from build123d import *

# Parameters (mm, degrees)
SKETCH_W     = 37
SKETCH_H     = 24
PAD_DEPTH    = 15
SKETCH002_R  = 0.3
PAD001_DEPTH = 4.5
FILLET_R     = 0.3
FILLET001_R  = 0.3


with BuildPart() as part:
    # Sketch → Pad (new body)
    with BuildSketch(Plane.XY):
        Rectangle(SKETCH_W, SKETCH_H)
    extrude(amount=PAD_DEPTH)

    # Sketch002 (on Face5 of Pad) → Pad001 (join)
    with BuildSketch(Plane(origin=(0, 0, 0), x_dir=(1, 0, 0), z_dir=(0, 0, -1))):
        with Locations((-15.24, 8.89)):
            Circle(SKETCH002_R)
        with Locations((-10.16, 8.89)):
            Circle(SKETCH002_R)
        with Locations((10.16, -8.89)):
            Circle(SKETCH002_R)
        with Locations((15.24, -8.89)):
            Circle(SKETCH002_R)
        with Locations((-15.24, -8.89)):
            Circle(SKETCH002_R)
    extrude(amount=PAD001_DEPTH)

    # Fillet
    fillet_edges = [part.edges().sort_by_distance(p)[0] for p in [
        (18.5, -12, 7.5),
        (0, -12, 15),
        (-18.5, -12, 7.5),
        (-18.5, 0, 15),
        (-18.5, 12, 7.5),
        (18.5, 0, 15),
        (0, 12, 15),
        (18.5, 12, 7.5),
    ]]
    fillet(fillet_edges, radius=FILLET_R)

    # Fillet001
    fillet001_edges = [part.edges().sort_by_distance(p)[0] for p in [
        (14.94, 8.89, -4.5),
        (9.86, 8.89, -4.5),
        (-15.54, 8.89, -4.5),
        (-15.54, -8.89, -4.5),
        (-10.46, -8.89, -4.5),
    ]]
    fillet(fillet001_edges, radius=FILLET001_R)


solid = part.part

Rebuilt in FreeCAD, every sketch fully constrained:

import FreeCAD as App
import Part
import Sketcher
Q = App.Units.Quantity


def edges_at(feature, points):
    """Names of the edges that pass closest to the given points."""
    edges = feature.Shape.Edges
    near = lambda p: min(range(len(edges)), key=lambda i: edges[i].distToShape(Part.Vertex(*p))[0])
    return sorted({f"Edge{near(p) + 1}" for p in points})

doc = App.newDocument("Part")
body = doc.addObject("PartDesign::Body", "Body")

# Sketch on XY plane
sketch1 = body.newObject("Sketcher::SketchObject", "Sketch")
sketch1.AttachmentSupport = (doc.getObject("XY_Plane"), [""])
sketch1.MapMode = "FlatFace"
sketch1.addGeometry([
    Part.LineSegment(App.Vector(-18.5, 12, 0), App.Vector(-18.5, -12, 0)),
    Part.LineSegment(App.Vector(-18.5, -12, 0), App.Vector(18.5, -12, 0)),
    Part.LineSegment(App.Vector(18.5, -12, 0), App.Vector(18.5, 12, 0)),
    Part.LineSegment(App.Vector(18.5, 12, 0), App.Vector(-18.5, 12, 0)),
], False)
sketch1.addConstraint([
    Sketcher.Constraint("Coincident", 0, 2, 1, 1),
    Sketcher.Constraint("Coincident", 1, 2, 2, 1),
    Sketcher.Constraint("Coincident", 2, 2, 3, 1),
    Sketcher.Constraint("Coincident", 3, 2, 0, 1),
    Sketcher.Constraint("Vertical", 0),
    Sketcher.Constraint("Horizontal", 1),
    Sketcher.Constraint("Vertical", 2),
    Sketcher.Constraint("Horizontal", 3),
    Sketcher.Constraint("Symmetric", 0, 2, 2, 2, -1, 1),
    Sketcher.Constraint("DistanceX", 1, 1, 1, 2, Q("37 mm")),
    Sketcher.Constraint("DistanceY", 0, 2, 0, 1, Q("24 mm")),
])
pad1 = body.newObject("PartDesign::Pad", "Pad")
pad1.Profile = sketch1
pad1.Length = 15

# Sketch on XY plane
sketch2 = body.newObject("Sketcher::SketchObject", "Sketch001")
sketch2.AttachmentSupport = (doc.getObject("XY_Plane"), [""])
sketch2.MapMode = "FlatFace"
sketch2.addGeometry([
    Part.Circle(App.Vector(-15.24, -8.89, 0), App.Vector(0, 0, 1), 0.3),  # 0
    Part.Circle(App.Vector(-10.16, -8.89, 0), App.Vector(0, 0, 1), 0.3),  # 1
    Part.Circle(App.Vector(10.16, 8.89, 0), App.Vector(0, 0, 1), 0.3),  # 2
    Part.Circle(App.Vector(15.24, 8.89, 0), App.Vector(0, 0, 1), 0.3),  # 3
    Part.Circle(App.Vector(-15.24, 8.89, 0), App.Vector(0, 0, 1), 0.3),  # 4
], False)
sketch2.addConstraint([
    Sketcher.Constraint("Equal", 0, 1),
    Sketcher.Constraint("Equal", 1, 2),
    Sketcher.Constraint("Equal", 2, 3),
    Sketcher.Constraint("Equal", 3, 4),
    Sketcher.Constraint("Symmetric", 1, 3, 2, 3, -1, 1),
    Sketcher.Constraint("Symmetric", 0, 3, 3, 3, -1, 1),
    Sketcher.Constraint("Symmetric", 3, 3, 4, 3, -2),
    Sketcher.Constraint("Horizontal", 0, 3, 1, 3),
    Sketcher.Constraint("Diameter", 0, Q("0.6 mm")),
    Sketcher.Constraint("DistanceX", 0, 3, 2, 3, Q("25.4 mm")),
    Sketcher.Constraint("DistanceX", 0, 3, -1, 1, Q("15.24 mm")),
    Sketcher.Constraint("DistanceY", 0, 3, -1, 1, Q("8.89 mm")),
])
pad2 = body.newObject("PartDesign::Pad", "Pad001")
pad2.Profile = sketch2
pad2.Length = 4.5
pad2.Reversed = True
doc.recompute()

fillet = body.newObject("PartDesign::Fillet", "Fillet")
fillet.Base = (pad2, edges_at(pad2, [
    (18.5, -12, 7.5),
    (0, -12, 15),
    (-18.5, -12, 7.5),
    (-18.5, 0, 15),
    (-18.5, 12, 7.5),
    (18.5, 0, 15),
    (0, 12, 15),
    (18.5, 12, 7.5),
]))
fillet.Radius = 0.3
doc.recompute()

fillet2 = body.newObject("PartDesign::Fillet", "Fillet001")
fillet2.Base = (fillet, edges_at(fillet, [
    (14.94, 8.89, -4.5),
    (9.86, 8.89, -4.5),
    (-15.54, 8.89, -4.5),
    (-15.54, -8.89, -4.5),
    (-10.46, -8.89, -4.5),
]))
fillet2.Radius = 0.3

doc.recompute()
